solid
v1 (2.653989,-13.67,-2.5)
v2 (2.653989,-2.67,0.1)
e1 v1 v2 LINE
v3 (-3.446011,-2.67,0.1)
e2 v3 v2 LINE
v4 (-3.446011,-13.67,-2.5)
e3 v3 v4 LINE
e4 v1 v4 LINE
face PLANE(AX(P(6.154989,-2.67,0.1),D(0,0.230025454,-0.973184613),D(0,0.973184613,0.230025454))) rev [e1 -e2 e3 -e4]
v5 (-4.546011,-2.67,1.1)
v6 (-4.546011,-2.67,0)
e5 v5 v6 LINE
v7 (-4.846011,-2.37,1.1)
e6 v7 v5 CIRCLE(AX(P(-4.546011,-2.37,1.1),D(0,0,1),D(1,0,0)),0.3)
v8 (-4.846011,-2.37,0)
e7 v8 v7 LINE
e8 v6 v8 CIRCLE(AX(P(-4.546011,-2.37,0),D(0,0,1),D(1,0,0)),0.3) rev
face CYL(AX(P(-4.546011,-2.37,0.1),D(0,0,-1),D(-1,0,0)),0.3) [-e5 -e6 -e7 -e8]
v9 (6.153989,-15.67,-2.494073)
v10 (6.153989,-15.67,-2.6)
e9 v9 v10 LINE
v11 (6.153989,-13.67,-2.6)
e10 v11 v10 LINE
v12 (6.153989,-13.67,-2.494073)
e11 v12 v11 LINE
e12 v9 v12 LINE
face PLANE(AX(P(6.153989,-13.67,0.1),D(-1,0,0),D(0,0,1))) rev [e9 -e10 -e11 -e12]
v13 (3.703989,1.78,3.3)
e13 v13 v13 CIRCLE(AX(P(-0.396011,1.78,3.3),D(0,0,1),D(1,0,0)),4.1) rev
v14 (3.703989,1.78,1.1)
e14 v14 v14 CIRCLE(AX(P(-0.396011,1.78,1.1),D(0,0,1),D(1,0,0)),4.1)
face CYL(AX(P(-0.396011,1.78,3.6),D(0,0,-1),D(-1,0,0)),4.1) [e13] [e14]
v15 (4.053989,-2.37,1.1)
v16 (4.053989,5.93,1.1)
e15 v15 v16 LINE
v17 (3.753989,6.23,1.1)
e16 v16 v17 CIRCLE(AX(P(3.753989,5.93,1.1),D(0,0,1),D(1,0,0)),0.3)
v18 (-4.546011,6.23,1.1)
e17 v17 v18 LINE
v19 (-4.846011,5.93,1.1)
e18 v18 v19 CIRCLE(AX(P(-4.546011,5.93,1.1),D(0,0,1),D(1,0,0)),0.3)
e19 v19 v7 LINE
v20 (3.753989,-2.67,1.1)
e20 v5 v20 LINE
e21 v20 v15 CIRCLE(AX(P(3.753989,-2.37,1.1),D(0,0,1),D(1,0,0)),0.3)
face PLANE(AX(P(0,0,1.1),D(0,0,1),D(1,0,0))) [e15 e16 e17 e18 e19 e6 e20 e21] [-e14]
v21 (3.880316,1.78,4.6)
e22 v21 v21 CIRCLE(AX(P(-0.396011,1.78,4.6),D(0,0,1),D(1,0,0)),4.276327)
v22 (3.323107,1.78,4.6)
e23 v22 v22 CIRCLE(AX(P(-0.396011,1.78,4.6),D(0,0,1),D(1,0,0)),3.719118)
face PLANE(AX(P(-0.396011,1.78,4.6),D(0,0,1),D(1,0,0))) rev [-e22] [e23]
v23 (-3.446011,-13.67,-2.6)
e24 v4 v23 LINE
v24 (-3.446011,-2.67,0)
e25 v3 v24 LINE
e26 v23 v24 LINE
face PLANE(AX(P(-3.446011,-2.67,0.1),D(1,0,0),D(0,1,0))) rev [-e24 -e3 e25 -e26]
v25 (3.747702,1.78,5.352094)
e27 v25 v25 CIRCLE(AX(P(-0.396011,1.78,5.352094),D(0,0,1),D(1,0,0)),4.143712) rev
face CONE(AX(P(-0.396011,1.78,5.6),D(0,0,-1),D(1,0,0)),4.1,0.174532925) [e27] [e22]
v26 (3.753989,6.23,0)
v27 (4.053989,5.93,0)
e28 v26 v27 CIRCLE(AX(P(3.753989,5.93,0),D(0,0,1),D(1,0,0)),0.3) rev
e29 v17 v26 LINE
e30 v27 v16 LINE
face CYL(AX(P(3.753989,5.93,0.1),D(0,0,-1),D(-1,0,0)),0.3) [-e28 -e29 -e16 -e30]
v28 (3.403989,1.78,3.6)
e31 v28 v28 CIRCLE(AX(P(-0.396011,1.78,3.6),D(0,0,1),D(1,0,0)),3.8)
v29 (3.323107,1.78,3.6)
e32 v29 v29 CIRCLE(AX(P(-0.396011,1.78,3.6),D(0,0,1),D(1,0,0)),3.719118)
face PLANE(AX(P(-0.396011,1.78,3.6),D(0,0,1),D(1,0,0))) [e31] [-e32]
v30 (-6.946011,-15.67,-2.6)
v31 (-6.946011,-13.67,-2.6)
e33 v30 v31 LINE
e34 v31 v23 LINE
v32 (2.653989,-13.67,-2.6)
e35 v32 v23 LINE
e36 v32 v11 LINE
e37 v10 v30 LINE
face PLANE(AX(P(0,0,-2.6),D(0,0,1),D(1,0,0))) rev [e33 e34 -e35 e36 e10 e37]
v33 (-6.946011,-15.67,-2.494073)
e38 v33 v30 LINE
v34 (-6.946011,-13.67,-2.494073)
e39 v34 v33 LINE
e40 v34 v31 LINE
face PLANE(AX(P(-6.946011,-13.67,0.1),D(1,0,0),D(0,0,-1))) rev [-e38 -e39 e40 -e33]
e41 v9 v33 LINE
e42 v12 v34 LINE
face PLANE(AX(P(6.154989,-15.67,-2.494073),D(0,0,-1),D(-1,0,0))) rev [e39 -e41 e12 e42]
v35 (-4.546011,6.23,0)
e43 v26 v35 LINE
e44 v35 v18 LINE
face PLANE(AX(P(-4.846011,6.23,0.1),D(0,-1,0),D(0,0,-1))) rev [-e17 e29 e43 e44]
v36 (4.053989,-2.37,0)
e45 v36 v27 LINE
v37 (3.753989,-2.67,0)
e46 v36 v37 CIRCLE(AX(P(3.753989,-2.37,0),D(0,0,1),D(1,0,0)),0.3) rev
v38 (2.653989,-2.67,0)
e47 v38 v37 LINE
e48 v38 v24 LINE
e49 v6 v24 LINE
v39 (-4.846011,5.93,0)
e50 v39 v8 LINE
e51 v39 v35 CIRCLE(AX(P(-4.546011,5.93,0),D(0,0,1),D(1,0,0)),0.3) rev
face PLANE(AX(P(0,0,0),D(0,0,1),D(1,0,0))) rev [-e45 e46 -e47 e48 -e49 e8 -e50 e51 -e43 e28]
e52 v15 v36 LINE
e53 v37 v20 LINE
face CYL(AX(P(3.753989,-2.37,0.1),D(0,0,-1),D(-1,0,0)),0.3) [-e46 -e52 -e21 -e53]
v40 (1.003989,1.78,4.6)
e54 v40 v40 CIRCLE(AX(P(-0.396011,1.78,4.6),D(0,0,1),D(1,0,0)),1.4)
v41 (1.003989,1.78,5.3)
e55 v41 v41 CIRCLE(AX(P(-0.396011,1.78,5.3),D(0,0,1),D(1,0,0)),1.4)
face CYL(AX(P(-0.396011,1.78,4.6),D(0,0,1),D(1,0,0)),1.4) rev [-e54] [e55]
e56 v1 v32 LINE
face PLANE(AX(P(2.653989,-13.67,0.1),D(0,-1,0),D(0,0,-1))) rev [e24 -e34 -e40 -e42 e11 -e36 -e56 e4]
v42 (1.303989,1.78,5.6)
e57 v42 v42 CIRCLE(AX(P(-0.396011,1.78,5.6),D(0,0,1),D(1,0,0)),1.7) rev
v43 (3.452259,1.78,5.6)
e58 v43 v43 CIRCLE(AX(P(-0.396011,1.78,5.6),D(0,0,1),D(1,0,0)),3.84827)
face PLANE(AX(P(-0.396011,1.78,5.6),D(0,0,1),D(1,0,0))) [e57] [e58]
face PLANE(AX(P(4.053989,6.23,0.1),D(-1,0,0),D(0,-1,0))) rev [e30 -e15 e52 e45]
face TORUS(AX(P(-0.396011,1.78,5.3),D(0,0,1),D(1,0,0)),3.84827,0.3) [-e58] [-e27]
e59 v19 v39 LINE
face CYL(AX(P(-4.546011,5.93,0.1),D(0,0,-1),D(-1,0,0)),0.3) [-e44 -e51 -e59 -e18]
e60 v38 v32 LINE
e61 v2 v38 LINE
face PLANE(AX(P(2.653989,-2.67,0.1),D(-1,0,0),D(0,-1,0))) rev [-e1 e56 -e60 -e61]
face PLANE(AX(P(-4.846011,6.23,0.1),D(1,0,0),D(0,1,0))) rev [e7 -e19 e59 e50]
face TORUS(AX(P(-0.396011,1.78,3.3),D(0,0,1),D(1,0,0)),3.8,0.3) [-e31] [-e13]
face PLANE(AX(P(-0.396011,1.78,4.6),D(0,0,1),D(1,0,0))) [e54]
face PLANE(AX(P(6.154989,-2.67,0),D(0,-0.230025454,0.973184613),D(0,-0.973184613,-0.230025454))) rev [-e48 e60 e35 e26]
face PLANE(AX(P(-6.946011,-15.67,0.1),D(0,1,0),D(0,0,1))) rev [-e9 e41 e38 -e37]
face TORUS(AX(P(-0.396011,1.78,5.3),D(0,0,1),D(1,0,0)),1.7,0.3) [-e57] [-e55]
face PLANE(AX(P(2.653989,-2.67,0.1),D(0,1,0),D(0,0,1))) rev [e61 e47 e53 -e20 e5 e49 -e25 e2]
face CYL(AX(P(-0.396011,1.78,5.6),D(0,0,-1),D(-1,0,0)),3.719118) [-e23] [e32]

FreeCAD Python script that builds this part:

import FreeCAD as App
import Part
import Sketcher

V = App.Vector
Q = App.Units.Quantity


def edges_at(feature, points):
    """Names of the edges that pass closest to the given points."""
    edges = feature.Shape.Edges
    near = lambda p: min(range(len(edges)), key=lambda i: edges[i].distToShape(Part.Vertex(*p))[0])
    return sorted({f"Edge{near(p) + 1}" for p in points})


def faces_at(feature, points):
    """Names of the faces that lie closest to the given points."""
    faces = feature.Shape.Faces
    near = lambda p: min(range(len(faces)), key=lambda i: faces[i].distToShape(Part.Vertex(*p))[0])
    return sorted({f"Face{near(p) + 1}" for p in points})


def add_polygon(sketch, points):
    """Adds a closed chain of lines whose ends are joined by coincident constraints."""
    first, n = sketch.GeometryCount, len(points)
    for a, b in zip(points, points[1:] + points[:1]):
        sketch.addGeometry(Part.LineSegment(App.Vector(*a, 0), App.Vector(*b, 0)), False)
    for i in range(n):
        sketch.addConstraint(Sketcher.Constraint("Coincident", first + i, 2, first + (i + 1) % n, 1))

doc = App.newDocument("Part")
body = doc.addObject("PartDesign::Body", "Body")

# Sketch on XY plane
sketch1 = doc.addObject("Sketcher::SketchObject", "Sketch")
body.addObject(sketch1)
sketch1.AttachmentSupport = (doc.XY_Plane, [""])
sketch1.MapMode = "FlatFace"
add_polygon(sketch1, [(2.7, -2.7), (4.1, -2.7), (4.1, 6.2), (-4.8, 6.2), (-4.8, -2.7), (-3.4, -2.7), (-3.4, -13.7), (-6.9, -13.7), (-6.9, -15.7), (6.2, -15.7), (6.2, -13.7), (2.7, -13.7)])  # lines 0-11
sketch1.addConstraint(Sketcher.Constraint("Horizontal", 0))
sketch1.addConstraint(Sketcher.Constraint("Vertical", 1))
sketch1.addConstraint(Sketcher.Constraint("Horizontal", 2))
sketch1.addConstraint(Sketcher.Constraint("Vertical", 3))
sketch1.addConstraint(Sketcher.Constraint("Horizontal", 4))
sketch1.addConstraint(Sketcher.Constraint("Vertical", 5))
sketch1.addConstraint(Sketcher.Constraint("Horizontal", 6))
sketch1.addConstraint(Sketcher.Constraint("Vertical", 7))
sketch1.addConstraint(Sketcher.Constraint("Horizontal", 8))
sketch1.addConstraint(Sketcher.Constraint("Vertical", 9))
sketch1.addConstraint(Sketcher.Constraint("Horizontal", 10))
sketch1.addConstraint(Sketcher.Constraint("Vertical", 11))
sketch1.addConstraint(Sketcher.Constraint("Horizontal", 0, 2, 3, 2))
sketch1.addConstraint(Sketcher.Constraint("Horizontal", 6, 2, 9, 2))
sketch1.addConstraint(Sketcher.Constraint("Equal", 0, 4))
sketch1.addConstraint(Sketcher.Constraint("Equal", 6, 10))
sketch1.addConstraint(Sketcher.Constraint("Equal", 2, 1))
sketch1.addConstraint(Sketcher.Constraint("DistanceY", 5, 2, 5, 1, Q("11 mm")))
sketch1.addConstraint(Sketcher.Constraint("DistanceY", 7, 2, 7, 1, Q("2 mm")))
sketch1.addConstraint(Sketcher.Constraint("DistanceX", 0, 1, 0, 2, Q("1.4 mm")))
sketch1.addConstraint(Sketcher.Constraint("DistanceX", 2, 2, 2, 1, Q("8.9 mm")))
sketch1.addConstraint(Sketcher.Constraint("DistanceX", 6, 2, 6, 1, Q("3.5 mm")))
sketch1.addConstraint(Sketcher.Constraint("DistanceY", 0, 2, -1, 1, Q("2.67 mm")))
sketch1.addConstraint(Sketcher.Constraint("DistanceX", -1, 1, 0, 2, Q("4.053989 mm")))
pad1 = doc.addObject("PartDesign::Pad", "Pad")
body.addObject(pad1)
pad1.Profile = sketch1
pad1.Length = 0.1

# Sketch on XY plane
sketch2 = doc.addObject("Sketcher::SketchObject", "Sketch001")
body.addObject(sketch2)
sketch2.AttachmentSupport = (doc.XY_Plane, [""])
sketch2.MapMode = "FlatFace"
sketch2.AttachmentOffset = App.Placement(V(0, 0, 0.1), App.Rotation())
add_polygon(sketch2, [(-5, 6), (-5, -3), (4, -3), (4, 6)])  # lines 0-3
sketch2.addConstraint(Sketcher.Constraint("Vertical", 0))
sketch2.addConstraint(Sketcher.Constraint("Horizontal", 1))
sketch2.addConstraint(Sketcher.Constraint("Vertical", 2))
sketch2.addConstraint(Sketcher.Constraint("Horizontal", 3))
sketch2.addConstraint(Sketcher.Constraint("Equal", 3, 0))
sketch2.addConstraint(Sketcher.Constraint("DistanceX", 1, 1, 1, 2, Q("8.9 mm")))
sketch2.addConstraint(Sketcher.Constraint("DistanceY", 0, 2, -1, 1, Q("2.67 mm")))
sketch2.addConstraint(Sketcher.Constraint("DistanceX", 0, 2, -1, 1, Q("4.846011 mm")))
pad2 = doc.addObject("PartDesign::Pad", "Pad001")
body.addObject(pad2)
pad2.Profile = sketch2
pad2.Length = 1

# Sketch on XY plane
sketch3 = doc.addObject("Sketcher::SketchObject", "Sketch002")
body.addObject(sketch3)
sketch3.AttachmentSupport = (doc.XY_Plane, [""])
sketch3.MapMode = "FlatFace"
sketch3.AttachmentOffset = App.Placement(V(0, 0, 1.1), App.Rotation())
sketch3.addGeometry(Part.Circle(V(-0.4, 1.8, 0), V(0, 0, 1), 4.1), False)
sketch3.addConstraint(Sketcher.Constraint("Diameter", 0, Q("8.2 mm")))
sketch3.addConstraint(Sketcher.Constraint("DistanceY", -1, 1, 0, 3, Q("1.78 mm")))
sketch3.addConstraint(Sketcher.Constraint("DistanceX", 0, 3, -1, 1, Q("0.396011 mm")))
pad3 = doc.addObject("PartDesign::Pad", "Pad002")
body.addObject(pad3)
pad3.Profile = sketch3
pad3.Length = 2.5

# Sketch on XY plane
sketch4 = doc.addObject("Sketcher::SketchObject", "Sketch003")
body.addObject(sketch4)
sketch4.AttachmentSupport = (doc.XY_Plane, [""])
sketch4.MapMode = "FlatFace"
sketch4.AttachmentOffset = App.Placement(V(0, 0, 3.6), App.Rotation())
sketch4.addGeometry(Part.Circle(V(-0.4, 1.8, 0), V(0, 0, 1), 3.7), False)
sketch4.addConstraint(Sketcher.Constraint("DistanceY", -1, 1, 0, 3, Q("1.78 mm")))
sketch4.addConstraint(Sketcher.Constraint("Diameter", 0, Q("7.438236 mm")))
sketch4.addConstraint(Sketcher.Constraint("DistanceX", 0, 3, -1, 1, Q("0.396011 mm")))
pad4 = doc.addObject("PartDesign::Pad", "Pad003")
body.addObject(pad4)
pad4.Profile = sketch4
pad4.Length = 2
body2 = doc.addObject("PartDesign::Body", "Body001")

# Sketch on XY plane
sketch5 = doc.addObject("Sketcher::SketchObject", "Sketch004")
body2.addObject(sketch5)
sketch5.AttachmentSupport = (doc.getObject("XY_Plane001"), [""])
sketch5.MapMode = "FlatFace"
sketch5.AttachmentOffset = App.Placement(V(0, 0, 5.6), App.Rotation())
sketch5.addGeometry(Part.Circle(V(-0.4, 1.8, 0), V(0, 0, 1), 4.1), False)
sketch5.addConstraint(Sketcher.Constraint("Diameter", 0, Q("8.2 mm")))
sketch5.addConstraint(Sketcher.Constraint("DistanceY", -1, 1, 0, 3, Q("1.78 mm")))
sketch5.addConstraint(Sketcher.Constraint("DistanceX", 0, 3, -1, 1, Q("0.396011 mm")))
pad5 = doc.addObject("PartDesign::Pad", "Pad004")
body2.addObject(pad5)
pad5.Profile = sketch5
pad5.Length = 1
pad5.Reversed = True
doc.recompute()

datumplane = doc.addObject("PartDesign::Plane", "DatumPlane")
body2.addObject(datumplane)
datumplane.AttachmentSupport = (doc.getObject("XY_Plane001"), [""])
datumplane.MapMode = "FlatFace"
datumplane.AttachmentOffset = App.Placement(V(0, 0, 5.6), App.Rotation())
draft = doc.addObject("PartDesign::Draft", "Draft")
body2.addObject(draft)
draft.Base = (pad5, faces_at(pad5, [(-4.496, 1.78, 5.1)]))
draft.NeutralPlane = (datumplane, [""])
draft.Angle = 10
draft.Reversed = False
doc.recompute()

boolean = doc.addObject("PartDesign::Boolean", "Boolean")
body.addObject(boolean)
boolean.Type = "Fuse"
boolean.addObjects([body2])

# Sketch on XY plane
sketch6 = doc.addObject("Sketcher::SketchObject", "Sketch005")
body.addObject(sketch6)
sketch6.AttachmentSupport = (doc.XY_Plane, [""])
sketch6.MapMode = "FlatFace"
sketch6.AttachmentOffset = App.Placement(V(0, 0, 5.6), App.Rotation())
sketch6.addGeometry(Part.Circle(V(-0.4, 1.8, 0), V(0, 0, 1), 1.4), False)
sketch6.addConstraint(Sketcher.Constraint("Diameter", 0, Q("2.8 mm")))
sketch6.addConstraint(Sketcher.Constraint("DistanceY", -1, 1, 0, 3, Q("1.78 mm")))
sketch6.addConstraint(Sketcher.Constraint("DistanceX", 0, 3, -1, 1, Q("0.396011 mm")))
pocket1 = doc.addObject("PartDesign::Pocket", "Pocket")
body.addObject(pocket1)
pocket1.Profile = sketch6
pocket1.Length = 1
doc.recompute()

fillet = doc.addObject("PartDesign::Fillet", "Fillet")
body.addObject(fillet)
fillet.Base = (pocket1, edges_at(pocket1, [(-4.496, 1.78, 3.6), (-4.496, 1.78, 5.6)]))
fillet.Radius = 0.3
doc.recompute()

fillet2 = doc.addObject("PartDesign::Fillet", "Fillet001")
body.addObject(fillet2)
fillet2.Base = (fillet, edges_at(fillet, [
    (-4.846, 6.23, 0.55),
    (4.054, 6.23, 0.55),
    (4.054, -2.67, 0.55),
    (-4.846, -2.67, 0.55),
]))
fillet2.Radius = 0.3
doc.recompute()

fillet3 = doc.addObject("PartDesign::Fillet", "Fillet002")
body.addObject(fillet3)
fillet3.Base = (fillet2, edges_at(fillet2, [(-1.796, 1.78, 5.6)]))
fillet3.Radius = 0.3

# Sketch on XY plane
sketch7 = doc.addObject("Sketcher::SketchObject", "Sketch006")
body.addObject(sketch7)
sketch7.AttachmentSupport = (doc.XY_Plane, [""])
sketch7.MapMode = "FlatFace"
add_polygon(sketch7, [(2.7, -13.7), (6.2, -13.7), (6.2, -15.7), (-6.9, -15.7), (-6.9, -13.7), (-3.4, -13.7), (-3.4, -2.7), (2.7, -2.7)])  # lines 0-7
sketch7.addConstraint(Sketcher.Constraint("Horizontal", 0))
sketch7.addConstraint(Sketcher.Constraint("Vertical", 1))
sketch7.addConstraint(Sketcher.Constraint("Horizontal", 2))
sketch7.addConstraint(Sketcher.Constraint("Vertical", 3))
sketch7.addConstraint(Sketcher.Constraint("Horizontal", 4))
sketch7.addConstraint(Sketcher.Constraint("Vertical", 5))
sketch7.addConstraint(Sketcher.Constraint("Horizontal", 6))
sketch7.addConstraint(Sketcher.Constraint("Vertical", 7))
sketch7.addConstraint(Sketcher.Constraint("Horizontal", 0, 2, 3, 2))
sketch7.addConstraint(Sketcher.Constraint("Equal", 0, 4))
sketch7.addConstraint(Sketcher.Constraint("DistanceY", 1, 2, 1, 1, Q("2 mm")))
sketch7.addConstraint(Sketcher.Constraint("DistanceY", 5, 1, 5, 2, Q("11 mm")))
sketch7.addConstraint(Sketcher.Constraint("DistanceX", 0, 1, 0, 2, Q("3.5 mm")))
sketch7.addConstraint(Sketcher.Constraint("DistanceX", 2, 2, 2, 1, Q("13.1 mm")))
sketch7.addConstraint(Sketcher.Constraint("DistanceY", 0, 2, -1, 1, Q("13.67 mm")))
sketch7.addConstraint(Sketcher.Constraint("DistanceX", -1, 1, 0, 2, Q("6.153989 mm")))
pad6 = doc.addObject("PartDesign::Pad", "Pad005")
body.addObject(pad6)
pad6.Profile = sketch7
pad6.Type = "TwoLengths"
pad6.Length = 2.6
pad6.Length2 = 0.1
pad6.Reversed = True

# Sketch on YZ plane
sketch8 = doc.addObject("Sketcher::SketchObject", "Sketch007")
body.addObject(sketch8)
sketch8.AttachmentSupport = (doc.YZ_Plane, [""])
sketch8.MapMode = "FlatFace"
sketch8.AttachmentOffset = App.Placement(V(0, 0, -3.446011), App.Rotation())
add_polygon(sketch8, [(-13.7, -2.6), (-2.7, 0), (-2.7, -2.6)])  # lines 0-2
sketch8.addConstraint(Sketcher.Constraint("Vertical", 1))
sketch8.addConstraint(Sketcher.Constraint("Horizontal", 2))
sketch8.addConstraint(Sketcher.Constraint("PointOnObject", 0, 2, -1))
sketch8.addConstraint(Sketcher.Constraint("DistanceX", 2, 2, 2, 1, Q("11 mm")))
sketch8.addConstraint(Sketcher.Constraint("DistanceY", 1, 2, 1, 1, Q("2.6 mm")))
sketch8.addConstraint(Sketcher.Constraint("DistanceX", 0, 2, -1, 1, Q("2.67 mm")))
pocket2 = doc.addObject("PartDesign::Pocket", "Pocket001")
body.addObject(pocket2)
pocket2.Profile = sketch8
pocket2.Type = "UpToFirst"
pocket2.Reversed = True

# Sketch on YZ plane
sketch9 = doc.addObject("Sketcher::SketchObject", "Sketch008")
body.addObject(sketch9)
sketch9.AttachmentSupport = (doc.YZ_Plane, [""])
sketch9.MapMode = "FlatFace"
sketch9.AttachmentOffset = App.Placement(V(0, 0, -3.446011), App.Rotation())
add_polygon(sketch9, [(-2.7, 0.1), (-13.7, -2.5), (-13.7, 0.1)])  # lines 0-2
sketch9.addConstraint(Sketcher.Constraint("Vertical", 1))
sketch9.addConstraint(Sketcher.Constraint("Horizontal", 2))
sketch9.addConstraint(Sketcher.Constraint("DistanceX", 2, 1, 2, 2, Q("11 mm")))
sketch9.addConstraint(Sketcher.Constraint("DistanceY", 1, 1, 1, 2, Q("2.6 mm")))
sketch9.addConstraint(Sketcher.Constraint("DistanceY", 0, 2, -1, 1, Q("2.5 mm")))
sketch9.addConstraint(Sketcher.Constraint("DistanceX", 0, 2, -1, 1, Q("13.67 mm")))
pocket3 = doc.addObject("PartDesign::Pocket", "Pocket002")
body.addObject(pocket3)
pocket3.Profile = sketch9
pocket3.Type = "UpToFirst"
pocket3.Reversed = True

# Sketch on YZ plane
sketch10 = doc.addObject("Sketcher::SketchObject", "Sketch009")
body.addObject(sketch10)
sketch10.AttachmentSupport = (doc.YZ_Plane, [""])
sketch10.MapMode = "FlatFace"
sketch10.AttachmentOffset = App.Placement(V(0, 0, -6.946011), App.Rotation())
add_polygon(sketch10, [(-13.7, -2.5), (-15.7, -2.5), (-15.7, 0.1), (-13.7, 0.1)])  # lines 0-3
sketch10.addConstraint(Sketcher.Constraint("Horizontal", 0))
sketch10.addConstraint(Sketcher.Constraint("Vertical", 1))
sketch10.addConstraint(Sketcher.Constraint("Horizontal", 2))
sketch10.addConstraint(Sketcher.Constraint("Vertical", 3))
sketch10.addConstraint(Sketcher.Constraint("DistanceX", 0, 2, 0, 1, Q("2 mm")))
sketch10.addConstraint(Sketcher.Constraint("DistanceY", -1, 1, 1, 2, Q("0.1 mm")))
sketch10.addConstraint(Sketcher.Constraint("DistanceX", 0, 2, -1, 1, Q("15.67 mm")))
sketch10.addConstraint(Sketcher.Constraint("DistanceY", 1, 1, 1, 2, Q("2.594073 mm")))
pocket4 = doc.addObject("PartDesign::Pocket", "Pocket003")
body.addObject(pocket4)
pocket4.Profile = sketch10
pocket4.Type = "UpToFirst"
pocket4.Reversed = True

doc.recompute()
